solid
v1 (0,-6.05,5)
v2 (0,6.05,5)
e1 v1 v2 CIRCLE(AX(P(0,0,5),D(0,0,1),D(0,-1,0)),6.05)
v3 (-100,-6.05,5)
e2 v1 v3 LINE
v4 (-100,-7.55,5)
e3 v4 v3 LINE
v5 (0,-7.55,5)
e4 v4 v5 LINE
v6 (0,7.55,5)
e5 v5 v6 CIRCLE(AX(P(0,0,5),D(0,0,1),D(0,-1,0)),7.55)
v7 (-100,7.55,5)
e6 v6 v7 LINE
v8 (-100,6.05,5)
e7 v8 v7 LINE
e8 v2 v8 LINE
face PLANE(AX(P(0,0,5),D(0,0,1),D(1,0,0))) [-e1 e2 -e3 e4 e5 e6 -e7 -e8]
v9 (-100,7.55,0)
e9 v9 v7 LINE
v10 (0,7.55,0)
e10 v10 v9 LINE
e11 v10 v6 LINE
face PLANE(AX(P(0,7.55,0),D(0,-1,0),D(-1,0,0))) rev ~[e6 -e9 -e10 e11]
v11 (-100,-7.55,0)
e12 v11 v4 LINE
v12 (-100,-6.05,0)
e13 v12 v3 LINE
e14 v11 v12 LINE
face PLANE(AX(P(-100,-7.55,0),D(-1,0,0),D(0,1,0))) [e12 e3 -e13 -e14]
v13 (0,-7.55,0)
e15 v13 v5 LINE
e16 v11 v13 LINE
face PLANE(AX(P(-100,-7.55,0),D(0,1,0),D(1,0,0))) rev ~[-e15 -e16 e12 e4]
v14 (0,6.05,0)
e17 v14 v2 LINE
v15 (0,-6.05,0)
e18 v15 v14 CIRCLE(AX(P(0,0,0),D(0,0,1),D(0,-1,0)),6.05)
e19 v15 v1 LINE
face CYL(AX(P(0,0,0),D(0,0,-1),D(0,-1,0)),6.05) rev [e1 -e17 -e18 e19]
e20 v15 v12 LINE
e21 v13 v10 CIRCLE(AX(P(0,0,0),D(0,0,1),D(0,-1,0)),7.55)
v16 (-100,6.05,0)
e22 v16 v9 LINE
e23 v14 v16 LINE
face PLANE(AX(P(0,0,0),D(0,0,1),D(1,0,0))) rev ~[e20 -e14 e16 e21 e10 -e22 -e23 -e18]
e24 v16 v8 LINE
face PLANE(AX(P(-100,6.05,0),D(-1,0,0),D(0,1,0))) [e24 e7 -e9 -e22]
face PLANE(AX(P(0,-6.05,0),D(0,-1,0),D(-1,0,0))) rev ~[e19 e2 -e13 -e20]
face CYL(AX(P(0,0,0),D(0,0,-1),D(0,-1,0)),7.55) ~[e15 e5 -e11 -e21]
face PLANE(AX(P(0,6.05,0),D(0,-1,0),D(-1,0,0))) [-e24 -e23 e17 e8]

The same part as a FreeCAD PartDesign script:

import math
import FreeCAD as App
import Part
import Sketcher
Q = App.Units.Quantity

doc = App.newDocument("Part")
body = doc.addObject("PartDesign::Body", "Body")

sketch1 = doc.addObject("Sketcher::SketchObject", "Sketch")
body.addObject(sketch1)
sketch1.AttachmentSupport = (doc.XY_Plane, [""])
sketch1.MapMode = "FlatFace"
sketch1.addGeometry(Part.ArcOfCircle(Part.Circle(App.Vector(0, 0, 0), App.Vector(0, 0, 1), 6), math.radians(-90), math.radians(90)), False)
sketch1.addGeometry(Part.LineSegment(App.Vector(0, -6, 0), App.Vector(-100, -6, 0)), False)
sketch1.addGeometry(Part.LineSegment(App.Vector(-100, -6, 0), App.Vector(-100, -7.5, 0)), False)
sketch1.addGeometry(Part.LineSegment(App.Vector(-100, -7.5, 0), App.Vector(0, -7.5, 0)), False)
sketch1.addGeometry(Part.ArcOfCircle(Part.Circle(App.Vector(0, 0, 0), App.Vector(0, 0, 1), 7.5), math.radians(-90), math.radians(90)), False)
sketch1.addGeometry(Part.LineSegment(App.Vector(0, 7.5, 0), App.Vector(-100, 7.5, 0)), False)
sketch1.addGeometry(Part.LineSegment(App.Vector(-100, 7.5, 0), App.Vector(-100, 6, 0)), False)
sketch1.addGeometry(Part.LineSegment(App.Vector(-100, 6, 0), App.Vector(0, 6, 0)), False)
sketch1.addConstraint(Sketcher.Constraint("Tangent", 0, 1, 1, 1))
sketch1.addConstraint(Sketcher.Constraint("Coincident", 1, 2, 2, 1))
sketch1.addConstraint(Sketcher.Constraint("Coincident", 2, 2, 3, 1))
sketch1.addConstraint(Sketcher.Constraint("Tangent", 3, 2, 4, 1))
sketch1.addConstraint(Sketcher.Constraint("Tangent", 4, 2, 5, 1))
sketch1.addConstraint(Sketcher.Constraint("Coincident", 5, 2, 6, 1))
sketch1.addConstraint(Sketcher.Constraint("Coincident", 6, 2, 7, 1))
sketch1.addConstraint(Sketcher.Constraint("Tangent", 7, 2, 0, 2))
sketch1.addConstraint(Sketcher.Constraint("Horizontal", 1))
sketch1.addConstraint(Sketcher.Constraint("Vertical", 2))
sketch1.addConstraint(Sketcher.Constraint("Horizontal", 3))
sketch1.addConstraint(Sketcher.Constraint("Horizontal", 5))
sketch1.addConstraint(Sketcher.Constraint("Vertical", 6))
sketch1.addConstraint(Sketcher.Constraint("Horizontal", 7))
sketch1.addConstraint(Sketcher.Constraint("Coincident", 0, 3, -1, 1))
sketch1.addConstraint(Sketcher.Constraint("Coincident", 4, 3, -1, 1))
sketch1.addConstraint(Sketcher.Constraint("Vertical", 2, 2, 5, 2))
sketch1.addConstraint(Sketcher.Constraint("DistanceX", 1, 2, 1, 1, Q("100 mm")))
sketch1.addConstraint(Sketcher.Constraint("Radius", 0, Q("6.05 mm")))
sketch1.addConstraint(Sketcher.Constraint("DistanceY", 2, 2, 2, 1, Q("1.5 mm")))
pad1 = doc.addObject("PartDesign::Pad", "Pad")
body.addObject(pad1)
pad1.Profile = sketch1
pad1.Length = 5

doc.recompute()
